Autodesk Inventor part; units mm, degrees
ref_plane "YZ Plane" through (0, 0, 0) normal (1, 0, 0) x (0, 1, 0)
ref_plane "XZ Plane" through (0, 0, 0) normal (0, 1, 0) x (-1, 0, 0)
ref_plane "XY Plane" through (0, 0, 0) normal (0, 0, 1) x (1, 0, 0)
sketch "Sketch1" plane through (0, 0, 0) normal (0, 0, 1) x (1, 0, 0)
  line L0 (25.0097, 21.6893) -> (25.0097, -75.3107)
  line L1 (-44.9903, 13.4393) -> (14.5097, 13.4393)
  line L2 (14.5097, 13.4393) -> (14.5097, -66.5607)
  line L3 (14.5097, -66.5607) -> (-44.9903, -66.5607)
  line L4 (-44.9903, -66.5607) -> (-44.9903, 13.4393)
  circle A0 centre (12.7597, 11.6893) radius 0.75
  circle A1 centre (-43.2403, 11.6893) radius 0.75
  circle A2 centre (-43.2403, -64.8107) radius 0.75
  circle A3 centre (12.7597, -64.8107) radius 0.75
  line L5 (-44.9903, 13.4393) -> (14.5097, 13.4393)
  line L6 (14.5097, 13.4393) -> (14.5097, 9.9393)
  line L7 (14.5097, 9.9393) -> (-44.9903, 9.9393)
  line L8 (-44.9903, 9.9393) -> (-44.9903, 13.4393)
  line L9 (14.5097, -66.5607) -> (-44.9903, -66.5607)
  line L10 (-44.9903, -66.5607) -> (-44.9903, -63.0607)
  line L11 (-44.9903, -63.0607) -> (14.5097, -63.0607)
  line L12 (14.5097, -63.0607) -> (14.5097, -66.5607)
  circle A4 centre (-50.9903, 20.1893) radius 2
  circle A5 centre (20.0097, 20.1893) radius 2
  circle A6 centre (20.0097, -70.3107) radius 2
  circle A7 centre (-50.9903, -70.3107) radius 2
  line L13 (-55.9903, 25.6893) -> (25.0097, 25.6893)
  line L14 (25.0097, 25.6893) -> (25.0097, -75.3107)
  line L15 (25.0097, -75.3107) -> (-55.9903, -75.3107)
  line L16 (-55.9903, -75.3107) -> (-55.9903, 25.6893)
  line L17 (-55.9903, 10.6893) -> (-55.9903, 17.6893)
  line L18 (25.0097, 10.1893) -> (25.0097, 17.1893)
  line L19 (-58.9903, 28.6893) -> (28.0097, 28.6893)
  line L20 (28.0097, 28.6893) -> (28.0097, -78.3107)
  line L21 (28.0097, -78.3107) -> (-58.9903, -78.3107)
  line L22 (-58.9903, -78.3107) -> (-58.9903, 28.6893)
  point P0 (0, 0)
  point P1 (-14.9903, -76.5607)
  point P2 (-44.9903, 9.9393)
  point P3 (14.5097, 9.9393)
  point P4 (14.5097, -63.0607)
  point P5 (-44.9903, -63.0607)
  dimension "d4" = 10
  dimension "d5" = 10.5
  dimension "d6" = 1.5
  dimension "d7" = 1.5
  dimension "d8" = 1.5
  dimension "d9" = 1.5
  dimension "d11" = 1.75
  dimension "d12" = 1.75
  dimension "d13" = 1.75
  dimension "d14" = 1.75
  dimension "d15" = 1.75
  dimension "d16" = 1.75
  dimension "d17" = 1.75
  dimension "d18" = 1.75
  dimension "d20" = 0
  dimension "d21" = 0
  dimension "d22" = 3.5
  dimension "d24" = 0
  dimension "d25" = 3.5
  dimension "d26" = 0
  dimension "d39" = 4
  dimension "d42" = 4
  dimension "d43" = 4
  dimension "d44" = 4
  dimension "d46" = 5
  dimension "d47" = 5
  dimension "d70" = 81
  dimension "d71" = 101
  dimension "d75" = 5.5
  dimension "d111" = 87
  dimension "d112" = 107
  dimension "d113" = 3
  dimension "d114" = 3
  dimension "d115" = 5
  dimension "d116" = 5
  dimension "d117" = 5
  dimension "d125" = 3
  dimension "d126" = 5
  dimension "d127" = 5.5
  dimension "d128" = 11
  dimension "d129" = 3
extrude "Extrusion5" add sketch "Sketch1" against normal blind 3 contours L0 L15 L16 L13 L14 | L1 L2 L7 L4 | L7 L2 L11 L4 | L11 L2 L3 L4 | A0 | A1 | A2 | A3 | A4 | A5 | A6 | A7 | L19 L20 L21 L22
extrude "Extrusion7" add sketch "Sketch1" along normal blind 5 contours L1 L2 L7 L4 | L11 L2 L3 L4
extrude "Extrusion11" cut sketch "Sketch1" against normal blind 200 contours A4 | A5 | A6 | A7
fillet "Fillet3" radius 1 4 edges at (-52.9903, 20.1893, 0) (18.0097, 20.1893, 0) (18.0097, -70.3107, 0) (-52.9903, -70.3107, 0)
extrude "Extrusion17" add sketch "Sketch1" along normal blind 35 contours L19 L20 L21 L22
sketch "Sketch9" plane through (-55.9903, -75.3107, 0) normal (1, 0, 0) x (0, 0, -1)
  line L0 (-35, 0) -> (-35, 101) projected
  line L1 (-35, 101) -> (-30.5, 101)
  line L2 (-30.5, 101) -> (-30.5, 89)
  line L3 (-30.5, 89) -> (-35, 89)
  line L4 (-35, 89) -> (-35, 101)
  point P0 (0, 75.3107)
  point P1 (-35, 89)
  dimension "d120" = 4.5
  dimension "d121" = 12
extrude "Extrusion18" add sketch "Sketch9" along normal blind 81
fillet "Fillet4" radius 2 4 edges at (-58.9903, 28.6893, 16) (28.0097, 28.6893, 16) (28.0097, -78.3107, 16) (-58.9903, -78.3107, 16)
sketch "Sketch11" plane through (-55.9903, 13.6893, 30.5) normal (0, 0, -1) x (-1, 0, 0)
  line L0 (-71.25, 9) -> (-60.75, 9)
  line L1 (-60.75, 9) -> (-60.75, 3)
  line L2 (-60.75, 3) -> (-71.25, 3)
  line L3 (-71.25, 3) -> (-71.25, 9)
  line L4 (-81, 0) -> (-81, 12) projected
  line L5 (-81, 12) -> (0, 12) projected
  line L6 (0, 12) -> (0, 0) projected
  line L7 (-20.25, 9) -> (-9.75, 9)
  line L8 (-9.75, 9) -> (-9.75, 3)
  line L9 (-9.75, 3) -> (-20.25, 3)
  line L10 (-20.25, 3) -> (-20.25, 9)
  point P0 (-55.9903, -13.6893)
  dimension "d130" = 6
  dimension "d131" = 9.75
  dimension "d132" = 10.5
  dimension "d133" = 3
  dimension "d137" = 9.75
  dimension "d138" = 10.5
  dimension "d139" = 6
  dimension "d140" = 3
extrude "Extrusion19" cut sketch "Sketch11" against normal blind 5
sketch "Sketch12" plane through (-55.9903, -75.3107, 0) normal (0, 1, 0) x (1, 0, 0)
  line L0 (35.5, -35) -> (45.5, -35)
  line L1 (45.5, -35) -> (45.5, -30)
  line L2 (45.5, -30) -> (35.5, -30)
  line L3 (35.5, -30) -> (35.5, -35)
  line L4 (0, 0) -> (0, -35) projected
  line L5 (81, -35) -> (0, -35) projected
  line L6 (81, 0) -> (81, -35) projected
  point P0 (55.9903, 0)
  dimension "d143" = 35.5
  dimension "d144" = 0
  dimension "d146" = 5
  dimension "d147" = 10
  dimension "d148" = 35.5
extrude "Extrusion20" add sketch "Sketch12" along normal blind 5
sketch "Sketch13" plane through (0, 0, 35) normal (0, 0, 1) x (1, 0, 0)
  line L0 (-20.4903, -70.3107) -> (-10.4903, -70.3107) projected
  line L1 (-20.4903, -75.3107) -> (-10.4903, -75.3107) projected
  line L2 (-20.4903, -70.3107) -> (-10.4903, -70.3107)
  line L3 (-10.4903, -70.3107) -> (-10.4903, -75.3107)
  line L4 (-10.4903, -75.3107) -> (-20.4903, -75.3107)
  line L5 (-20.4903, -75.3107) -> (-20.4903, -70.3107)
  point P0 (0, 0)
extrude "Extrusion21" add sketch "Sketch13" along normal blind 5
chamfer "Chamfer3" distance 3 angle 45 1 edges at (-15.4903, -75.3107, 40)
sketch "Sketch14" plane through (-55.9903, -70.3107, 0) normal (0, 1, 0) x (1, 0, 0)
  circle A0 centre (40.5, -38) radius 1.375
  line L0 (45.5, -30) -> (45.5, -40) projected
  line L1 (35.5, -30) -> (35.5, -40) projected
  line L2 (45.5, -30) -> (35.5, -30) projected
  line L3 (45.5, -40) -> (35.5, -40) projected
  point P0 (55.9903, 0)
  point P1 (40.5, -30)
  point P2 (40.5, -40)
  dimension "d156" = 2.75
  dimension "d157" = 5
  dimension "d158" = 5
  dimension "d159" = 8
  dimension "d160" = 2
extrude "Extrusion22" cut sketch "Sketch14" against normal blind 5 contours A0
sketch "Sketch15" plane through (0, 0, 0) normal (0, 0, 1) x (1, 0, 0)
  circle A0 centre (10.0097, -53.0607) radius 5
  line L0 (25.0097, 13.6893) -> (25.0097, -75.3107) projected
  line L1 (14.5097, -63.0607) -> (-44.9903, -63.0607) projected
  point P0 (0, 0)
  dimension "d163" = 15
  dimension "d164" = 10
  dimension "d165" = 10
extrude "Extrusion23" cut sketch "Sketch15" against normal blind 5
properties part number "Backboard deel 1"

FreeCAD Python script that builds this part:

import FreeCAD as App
import Part
import Sketcher
from FreeCAD import Vector


def edges_at(feature, points):
    """Names of the edges that pass closest to the given points."""
    edges = feature.Shape.Edges
    near = lambda p: min(range(len(edges)), key=lambda i: edges[i].distToShape(Part.Vertex(*p))[0])
    return sorted({f"Edge{near(p) + 1}" for p in points})


def add_polygon(sketch, points):
    """Adds a closed chain of lines whose ends are joined by coincident constraints."""
    first, n = sketch.GeometryCount, len(points)
    for a, b in zip(points, points[1:] + points[:1]):
        sketch.addGeometry(Part.LineSegment(App.Vector(*a, 0), App.Vector(*b, 0)), False)
    for i in range(n):
        sketch.addConstraint(Sketcher.Constraint("Coincident", first + i, 2, first + (i + 1) % n, 1))

doc = App.newDocument("Part")
params = doc.addObject("Spreadsheet::Sheet", "Params")
for row, (alias, value) in enumerate([
    ("sketch1_width", "87 mm"),
    ("sketch1_height", "107 mm"),
    ("pad1_length", "3 mm"),
    ("sketch2_diameter", "1.5 mm"),
    ("sketch2_height", "3.5 mm"),
    ("sketch2_width", "59.5 mm"),
    ("pad2_length", "5 mm"),
    ("sketch3_diameter", "4 mm"),
    ("pocket1_length", "200 mm"),
    ("fillet_radius", "1 mm"),
    ("sketch4_width", "87 mm"),
    ("sketch4_width2", "81 mm"),
    ("sketch4_height", "107 mm"),
    ("sketch4_height2", "101 mm"),
    ("pad3_length", "35 mm"),
    ("sketch5_width", "12 mm"),
    ("sketch5_height", "4.5 mm"),
    ("pad4_length", "81 mm"),
    ("fillet2_radius", "2 mm"),
    ("sketch6_height", "6 mm"),
    ("sketch6_width", "10.5 mm"),
    ("pocket2_length", "5 mm"),
    ("sketch7_width", "10 mm"),
    ("sketch7_height", "5 mm"),
    ("pad5_length", "5 mm"),
    ("sketch8_width", "10 mm"),
    ("sketch8_height", "5 mm"),
    ("pad6_length", "5 mm"),
    ("chamfer_size", "3 mm"),
    ("sketch9_diameter", "2.75 mm"),
    ("pocket3_length", "5 mm"),
    ("sketch10_diameter", "10 mm"),
    ("pocket4_length", "5 mm"),
], start=1):
    params.set(f"A{row}", alias)
    params.set(f"B{row}", "=" + value)
    params.setAlias(f"B{row}", alias)

body = doc.addObject("PartDesign::Body", "Body")

sketch1 = body.newObject("Sketcher::SketchObject", "Sketch")
sketch1.AttachmentSupport = (doc.getObject("XY_Plane"), [""])
sketch1.MapMode = "FlatFace"
add_polygon(sketch1, [(28.0097, 28.6893), (-58.9903, 28.6893), (-58.9903, -78.3107), (28.0097, -78.3107)])
sketch1.addConstraint([
    Sketcher.Constraint("Horizontal", 0),
    Sketcher.Constraint("Vertical", 1),
    Sketcher.Constraint("Horizontal", 2),
    Sketcher.Constraint("Vertical", 3),
    Sketcher.Constraint("DistanceX", 0, 2, 0, 1, 87.0),
    Sketcher.Constraint("DistanceY", 1, 2, 1, 1, 107.0),
    Sketcher.Constraint("DistanceX", 0, 2, -1, 1, 58.9903),
    Sketcher.Constraint("DistanceY", -1, 1, 0, 2, 28.6893),
])
sketch1.setExpression("Constraints[8]", "Params.sketch1_width")
sketch1.setExpression("Constraints[9]", "Params.sketch1_height")
pad1 = body.newObject("PartDesign::Pad", "Pad")
pad1.Profile = sketch1
pad1.setExpression("Length", "Params.pad1_length")
pad1.Reversed = True

sketch2 = body.newObject("Sketcher::SketchObject", "Sketch001")
sketch2.AttachmentSupport = (doc.getObject("XY_Plane"), [""])
sketch2.MapMode = "FlatFace"
add_polygon(sketch2, [(14.5097, 13.4393), (-44.9903, 13.4393), (-44.9903, 9.9393), (14.5097, 9.9393)])
sketch2.addGeometry(Part.Circle(Vector(-43.2403, 11.6893, 0), Vector(0, 0, 1), 0.75), False)
sketch2.addGeometry(Part.Circle(Vector(12.7597, 11.6893, 0), Vector(0, 0, 1), 0.75), False)
add_polygon(sketch2, [(14.5097, -63.0607), (-44.9903, -63.0607), (-44.9903, -66.5607), (14.5097, -66.5607)])
sketch2.addGeometry(Part.Circle(Vector(-43.2403, -64.8107, 0), Vector(0, 0, 1), 0.75), False)
sketch2.addGeometry(Part.Circle(Vector(12.7597, -64.8107, 0), Vector(0, 0, 1), 0.75), False)
sketch2.addConstraint([
    Sketcher.Constraint("Horizontal", 0),
    Sketcher.Constraint("Vertical", 1),
    Sketcher.Constraint("Horizontal", 2),
    Sketcher.Constraint("Vertical", 3),
    Sketcher.Constraint("Horizontal", 6),
    Sketcher.Constraint("Vertical", 7),
    Sketcher.Constraint("Horizontal", 8),
    Sketcher.Constraint("Vertical", 9),
    Sketcher.Constraint("Equal", 4, 5),
    Sketcher.Constraint("Equal", 5, 10),
    Sketcher.Constraint("Equal", 10, 11),
    Sketcher.Constraint("Horizontal", 4, 3, 5, 3),
    Sketcher.Constraint("Horizontal", 10, 3, 11, 3),
    Sketcher.Constraint("Vertical", 4, 3, 10, 3),
    Sketcher.Constraint("Vertical", 5, 3, 11, 3),
    Sketcher.Constraint("Vertical", 1, 2, 6, 2),
    Sketcher.Constraint("Vertical", 3, 2, 8, 2),
    Sketcher.Constraint("Equal", 3, 7),
    Sketcher.Constraint("Diameter", 4, 1.5),
    Sketcher.Constraint("DistanceY", 1, 2, 1, 1, 3.5),
    Sketcher.Constraint("DistanceX", 0, 2, 4, 3, 1.75),
    Sketcher.Constraint("DistanceY", 4, 3, 0, 2, 1.75),
    Sketcher.Constraint("DistanceX", 5, 3, 2, 2, 1.75),
    Sketcher.Constraint("DistanceY", 10, 3, 6, 2, 1.75),
    Sketcher.Constraint("DistanceX", 0, 2, 0, 1, 59.5),
    Sketcher.Constraint("DistanceY", 6, 2, 1, 2, 73.0),
    Sketcher.Constraint("DistanceX", 4, 3, -1, 1, 43.2403),
    Sketcher.Constraint("DistanceY", -1, 1, 4, 3, 11.6893),
])
sketch2.setExpression("Constraints[26]", "Params.sketch2_diameter")
sketch2.setExpression("Constraints[27]", "Params.sketch2_height")
sketch2.setExpression("Constraints[32]", "Params.sketch2_width")
pad2 = body.newObject("PartDesign::Pad", "Pad001")
pad2.Profile = sketch2
pad2.setExpression("Length", "Params.pad2_length")

sketch3 = body.newObject("Sketcher::SketchObject", "Sketch002")
sketch3.AttachmentSupport = (doc.getObject("XY_Plane"), [""])
sketch3.MapMode = "FlatFace"
sketch3.addGeometry([
    Part.Circle(Vector(-50.9903, 20.1893, 0), Vector(0, 0, 1), 2),
    Part.Circle(Vector(20.0097, 20.1893, 0), Vector(0, 0, 1), 2),
    Part.Circle(Vector(20.0097, -70.3107, 0), Vector(0, 0, 1), 2),
    Part.Circle(Vector(-50.9903, -70.3107, 0), Vector(0, 0, 1), 2),
], False)
sketch3.addConstraint([
    Sketcher.Constraint("Equal", 0, 1),
    Sketcher.Constraint("Equal", 1, 2),
    Sketcher.Constraint("Equal", 2, 3),
    Sketcher.Constraint("Horizontal", 0, 3, 1, 3),
    Sketcher.Constraint("Horizontal", 2, 3, 3, 3),
    Sketcher.Constraint("Vertical", 1, 3, 2, 3),
    Sketcher.Constraint("Vertical", 0, 3, 3, 3),
    Sketcher.Constraint("Diameter", 0, 4.0),
    Sketcher.Constraint("DistanceX", 0, 3, 1, 3, 71.0),
    Sketcher.Constraint("DistanceY", 2, 3, 1, 3, 90.5),
    Sketcher.Constraint("DistanceX", 0, 3, -1, 1, 50.9903),
    Sketcher.Constraint("DistanceY", -1, 1, 0, 3, 20.1893),
])
sketch3.setExpression("Constraints[7]", "Params.sketch3_diameter")
pocket1 = body.newObject("PartDesign::Pocket", "Pocket")
pocket1.Profile = sketch3
pocket1.setExpression("Length", "Params.pocket1_length")
doc.recompute()

fillet = body.newObject("PartDesign::Fillet", "Fillet")
fillet.Base = (pocket1, edges_at(pocket1, [
    (-52.99, 20.189, 0),
    (18.01, 20.189, 0),
    (18.01, -70.311, 0),
    (-52.99, -70.311, 0),
]))
fillet.setExpression("Radius", "Params.fillet_radius")

sketch4 = body.newObject("Sketcher::SketchObject", "Sketch003")
sketch4.AttachmentSupport = (doc.getObject("XY_Plane"), [""])
sketch4.MapMode = "FlatFace"
add_polygon(sketch4, [(28.0097, 28.6893), (-58.9903, 28.6893), (-58.9903, -78.3107), (28.0097, -78.3107)])
add_polygon(sketch4, [(25.0097, 25.6893), (25.0097, -75.3107), (-55.9903, -75.3107), (-55.9903, 25.6893)])
sketch4.addConstraint([
    Sketcher.Constraint("Horizontal", 0),
    Sketcher.Constraint("Vertical", 1),
    Sketcher.Constraint("Horizontal", 2),
    Sketcher.Constraint("Vertical", 3),
    Sketcher.Constraint("Vertical", 4),
    Sketcher.Constraint("Horizontal", 5),
    Sketcher.Constraint("Vertical", 6),
    Sketcher.Constraint("Horizontal", 7),
    Sketcher.Constraint("DistanceX", 0, 2, 0, 1, 87.0),
    Sketcher.Constraint("DistanceX", 5, 2, 5, 1, 81.0),
    Sketcher.Constraint("DistanceY", 1, 2, 1, 1, 107.0),
    Sketcher.Constraint("DistanceY", 4, 2, 4, 1, 101.0),
    Sketcher.Constraint("DistanceX", 4, 2, 2, 2, 3.0),
    Sketcher.Constraint("DistanceY", 2, 2, 4, 2, 3.0),
    Sketcher.Constraint("DistanceX", 0, 2, -1, 1, 58.9903),
    Sketcher.Constraint("DistanceY", -1, 1, 0, 2, 28.6893),
])
sketch4.setExpression("Constraints[16]", "Params.sketch4_width")
sketch4.setExpression("Constraints[17]", "Params.sketch4_width2")
sketch4.setExpression("Constraints[18]", "Params.sketch4_height")
sketch4.setExpression("Constraints[19]", "Params.sketch4_height2")
pad3 = body.newObject("PartDesign::Pad", "Pad002")
pad3.Profile = sketch4
pad3.setExpression("Length", "Params.pad3_length")

sketch5 = body.newObject("Sketcher::SketchObject", "Sketch004")
sketch5.AttachmentSupport = (doc.getObject("YZ_Plane"), [""])
sketch5.MapMode = "FlatFace"
sketch5.AttachmentOffset = App.Placement(Vector(0, 0, -55.9903), App.Rotation())
add_polygon(sketch5, [(25.6893, 35), (13.6893, 35), (13.6893, 30.5), (25.6893, 30.5)])
sketch5.addConstraint([
    Sketcher.Constraint("Horizontal", 0),
    Sketcher.Constraint("Vertical", 1),
    Sketcher.Constraint("Horizontal", 2),
    Sketcher.Constraint("Vertical", 3),
    Sketcher.Constraint("DistanceX", 0, 2, 0, 1, 12.0),
    Sketcher.Constraint("DistanceY", 1, 2, 1, 1, 4.5),
    Sketcher.Constraint("DistanceY", -1, 1, 0, 2, 35.0),
    Sketcher.Constraint("DistanceX", -1, 1, 0, 2, 13.6893),
])
sketch5.setExpression("Constraints[8]", "Params.sketch5_width")
sketch5.setExpression("Constraints[9]", "Params.sketch5_height")
pad4 = body.newObject("PartDesign::Pad", "Pad003")
pad4.Profile = sketch5
pad4.setExpression("Length", "Params.pad4_length")
doc.recompute()

fillet2 = body.newObject("PartDesign::Fillet", "Fillet001")
fillet2.Base = (pad4, edges_at(pad4, [
    (-58.99, 28.689, 16),
    (28.01, 28.689, 16),
    (28.01, -78.311, 16),
    (-58.99, -78.311, 16),
]))
fillet2.setExpression("Radius", "Params.fillet2_radius")

sketch6 = body.newObject("Sketcher::SketchObject", "Sketch005")
sketch6.AttachmentSupport = (doc.getObject("XY_Plane"), [""])
sketch6.MapMode = "FlatFace"
sketch6.AttachmentOffset = App.Placement(Vector(0, 0, 30.5), App.Rotation())
add_polygon(sketch6, [(4.7597, 22.6893), (15.2597, 22.6893), (15.2597, 16.6893), (4.7597, 16.6893)])
add_polygon(sketch6, [(-46.2403, 22.6893), (-35.7403, 22.6893), (-35.7403, 16.6893), (-46.2403, 16.6893)])
sketch6.addConstraint([
    Sketcher.Constraint("Horizontal", 0),
    Sketcher.Constraint("Vertical", 1),
    Sketcher.Constraint("Horizontal", 2),
    Sketcher.Constraint("Vertical", 3),
    Sketcher.Constraint("Horizontal", 4),
    Sketcher.Constraint("Vertical", 5),
    Sketcher.Constraint("Horizontal", 6),
    Sketcher.Constraint("Vertical", 7),
    Sketcher.Constraint("Horizontal", 3, 2, 4, 2),
    Sketcher.Constraint("Horizontal", 2, 2, 5, 2),
    Sketcher.Constraint("Equal", 2, 4),
    Sketcher.Constraint("DistanceY", 1, 2, 1, 1, 6.0),
    Sketcher.Constraint("DistanceX", 0, 1, 0, 2, 10.5),
    Sketcher.Constraint("DistanceX", 4, 2, 0, 2, 51.0),
    Sketcher.Constraint("DistanceX", -1, 1, 0, 2, 15.2597),
    Sketcher.Constraint("DistanceY", -1, 1, 0, 2, 22.6893),
])
sketch6.setExpression("Constraints[19]", "Params.sketch6_height")
sketch6.setExpression("Constraints[20]", "Params.sketch6_width")
pocket2 = body.newObject("PartDesign::Pocket", "Pocket001")
pocket2.Profile = sketch6
pocket2.setExpression("Length", "Params.pocket2_length")
pocket2.Reversed = True

sketch7 = body.newObject("Sketcher::SketchObject", "Sketch006")
sketch7.AttachmentSupport = (doc.getObject("XZ_Plane"), [""])
sketch7.MapMode = "FlatFace"
sketch7.AttachmentOffset = App.Placement(Vector(0, 0, 75.3107), App.Rotation())
add_polygon(sketch7, [(-20.4903, 30), (-20.4903, 35), (-10.4903, 35), (-10.4903, 30)])
sketch7.addConstraint([
    Sketcher.Constraint("Vertical", 0),
    Sketcher.Constraint("Horizontal", 1),
    Sketcher.Constraint("Vertical", 2),
    Sketcher.Constraint("Horizontal", 3),
    Sketcher.Constraint("DistanceX", 1, 1, 1, 2, 10.0),
    Sketcher.Constraint("DistanceY", 0, 1, 0, 2, 5.0),
    Sketcher.Constraint("DistanceY", -1, 1, 0, 2, 35.0),
    Sketcher.Constraint("DistanceX", 0, 2, -1, 1, 20.4903),
])
sketch7.setExpression("Constraints[8]", "Params.sketch7_width")
sketch7.setExpression("Constraints[9]", "Params.sketch7_height")
pad5 = body.newObject("PartDesign::Pad", "Pad004")
pad5.Profile = sketch7
pad5.setExpression("Length", "Params.pad5_length")
pad5.Reversed = True

sketch8 = body.newObject("Sketcher::SketchObject", "Sketch007")
sketch8.AttachmentSupport = (doc.getObject("XY_Plane"), [""])
sketch8.MapMode = "FlatFace"
sketch8.AttachmentOffset = App.Placement(Vector(0, 0, 35), App.Rotation())
add_polygon(sketch8, [(-10.4903, -70.3107), (-20.4903, -70.3107), (-20.4903, -75.3107), (-10.4903, -75.3107)])
sketch8.addConstraint([
    Sketcher.Constraint("Horizontal", 0),
    Sketcher.Constraint("Vertical", 1),
    Sketcher.Constraint("Horizontal", 2),
    Sketcher.Constraint("Vertical", 3),
    Sketcher.Constraint("DistanceX", 0, 2, 0, 1, 10.0),
    Sketcher.Constraint("DistanceY", 1, 2, 1, 1, 5.0),
    Sketcher.Constraint("DistanceX", 0, 2, -1, 1, 20.4903),
    Sketcher.Constraint("DistanceY", 0, 2, -1, 1, 70.3107),
])
sketch8.setExpression("Constraints[8]", "Params.sketch8_width")
sketch8.setExpression("Constraints[9]", "Params.sketch8_height")
pad6 = body.newObject("PartDesign::Pad", "Pad005")
pad6.Profile = sketch8
pad6.setExpression("Length", "Params.pad6_length")
doc.recompute()

chamfer = body.newObject("PartDesign::Chamfer", "Chamfer")
chamfer.Base = (pad6, edges_at(pad6, [(-15.49, -75.311, 40)]))
chamfer.setExpression("Size", "Params.chamfer_size")

sketch9 = body.newObject("Sketcher::SketchObject", "Sketch008")
sketch9.AttachmentSupport = (doc.getObject("XZ_Plane"), [""])
sketch9.MapMode = "FlatFace"
sketch9.AttachmentOffset = App.Placement(Vector(0, 0, 70.3107), App.Rotation())
sketch9.addGeometry(Part.Circle(Vector(-15.4903, 38, 0), Vector(0, 0, 1), 1.375), False)
sketch9.addConstraint([
    Sketcher.Constraint("Diameter", 0, 2.75),
    Sketcher.Constraint("DistanceY", -1, 1, 0, 3, 38.0),
    Sketcher.Constraint("DistanceX", 0, 3, -1, 1, 15.4903),
])
sketch9.setExpression("Constraints[0]", "Params.sketch9_diameter")
pocket3 = body.newObject("PartDesign::Pocket", "Pocket002")
pocket3.Profile = sketch9
pocket3.setExpression("Length", "Params.pocket3_length")
pocket3.Reversed = True

sketch10 = body.newObject("Sketcher::SketchObject", "Sketch009")
sketch10.AttachmentSupport = (doc.getObject("XY_Plane"), [""])
sketch10.MapMode = "FlatFace"
sketch10.addGeometry(Part.Circle(Vector(10.0097, -53.0607, 0), Vector(0, 0, 1), 5), False)
sketch10.addConstraint([
    Sketcher.Constraint("Diameter", 0, 10.0),
    Sketcher.Constraint("DistanceX", -1, 1, 0, 3, 10.0097),
    Sketcher.Constraint("DistanceY", 0, 3, -1, 1, 53.0607),
])
sketch10.setExpression("Constraints[0]", "Params.sketch10_diameter")
pocket4 = body.newObject("PartDesign::Pocket", "Pocket003")
pocket4.Profile = sketch10
pocket4.setExpression("Length", "Params.pocket4_length")

doc.recompute()
